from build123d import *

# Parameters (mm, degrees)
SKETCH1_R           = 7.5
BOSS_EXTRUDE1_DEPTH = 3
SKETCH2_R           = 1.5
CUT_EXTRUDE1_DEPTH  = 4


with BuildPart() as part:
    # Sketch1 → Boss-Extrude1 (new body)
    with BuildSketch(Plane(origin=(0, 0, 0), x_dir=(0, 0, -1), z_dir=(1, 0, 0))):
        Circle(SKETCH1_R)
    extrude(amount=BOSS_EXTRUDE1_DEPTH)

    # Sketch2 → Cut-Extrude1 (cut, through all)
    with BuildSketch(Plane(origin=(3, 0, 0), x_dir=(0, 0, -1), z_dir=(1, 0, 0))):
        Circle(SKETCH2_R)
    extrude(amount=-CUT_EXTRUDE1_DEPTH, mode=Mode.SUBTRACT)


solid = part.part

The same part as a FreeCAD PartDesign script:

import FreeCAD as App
import Part
import Sketcher
from FreeCAD import Vector

doc = App.newDocument("Part")
params = doc.addObject("Spreadsheet::Sheet", "Params")
for row, (alias, value) in enumerate([
    ("sketch1_diameter", "15 mm"),
    ("pad1_length", "3 mm"),
    ("sketch2_diameter", "3 mm"),
], start=1):
    params.set(f"A{row}", alias)
    params.set(f"B{row}", "=" + value)
    params.setAlias(f"B{row}", alias)

body = doc.addObject("PartDesign::Body", "Body")

# Sketch on YZ plane
sketch1 = doc.addObject("Sketcher::SketchObject", "Sketch")
body.addObject(sketch1)
sketch1.AttachmentSupport = (doc.YZ_Plane, [""])
sketch1.MapMode = "FlatFace"
sketch1.addGeometry(Part.Circle(Vector(0, 0, 0), Vector(0, 0, 1), 8), False)
sketch1.addConstraint([
    Sketcher.Constraint("Coincident", 0, 3, -1, 1),
    Sketcher.Constraint("Diameter", 0, 15.0),
])
sketch1.setExpression("Constraints[1]", "Params.sketch1_diameter")
pad1 = doc.addObject("PartDesign::Pad", "Pad")
body.addObject(pad1)
pad1.Profile = sketch1
pad1.setExpression("Length", "Params.pad1_length")

# Sketch on YZ plane
sketch2 = doc.addObject("Sketcher::SketchObject", "Sketch001")
body.addObject(sketch2)
sketch2.AttachmentSupport = (doc.YZ_Plane, [""])
sketch2.MapMode = "FlatFace"
sketch2.AttachmentOffset = App.Placement(Vector(0, 0, 3), App.Rotation())
sketch2.addGeometry(Part.Circle(Vector(0, 0, 0), Vector(0, 0, 1), 1.5), False)
sketch2.addConstraint([
    Sketcher.Constraint("Coincident", 0, 3, -1, 1),
    Sketcher.Constraint("Diameter", 0, 3.0),
])
sketch2.setExpression("Constraints[1]", "Params.sketch2_diameter")
pocket1 = doc.addObject("PartDesign::Pocket", "Pocket")
body.addObject(pocket1)
pocket1.Profile = sketch2
pocket1.Type = "ThroughAll"

doc.recompute()
